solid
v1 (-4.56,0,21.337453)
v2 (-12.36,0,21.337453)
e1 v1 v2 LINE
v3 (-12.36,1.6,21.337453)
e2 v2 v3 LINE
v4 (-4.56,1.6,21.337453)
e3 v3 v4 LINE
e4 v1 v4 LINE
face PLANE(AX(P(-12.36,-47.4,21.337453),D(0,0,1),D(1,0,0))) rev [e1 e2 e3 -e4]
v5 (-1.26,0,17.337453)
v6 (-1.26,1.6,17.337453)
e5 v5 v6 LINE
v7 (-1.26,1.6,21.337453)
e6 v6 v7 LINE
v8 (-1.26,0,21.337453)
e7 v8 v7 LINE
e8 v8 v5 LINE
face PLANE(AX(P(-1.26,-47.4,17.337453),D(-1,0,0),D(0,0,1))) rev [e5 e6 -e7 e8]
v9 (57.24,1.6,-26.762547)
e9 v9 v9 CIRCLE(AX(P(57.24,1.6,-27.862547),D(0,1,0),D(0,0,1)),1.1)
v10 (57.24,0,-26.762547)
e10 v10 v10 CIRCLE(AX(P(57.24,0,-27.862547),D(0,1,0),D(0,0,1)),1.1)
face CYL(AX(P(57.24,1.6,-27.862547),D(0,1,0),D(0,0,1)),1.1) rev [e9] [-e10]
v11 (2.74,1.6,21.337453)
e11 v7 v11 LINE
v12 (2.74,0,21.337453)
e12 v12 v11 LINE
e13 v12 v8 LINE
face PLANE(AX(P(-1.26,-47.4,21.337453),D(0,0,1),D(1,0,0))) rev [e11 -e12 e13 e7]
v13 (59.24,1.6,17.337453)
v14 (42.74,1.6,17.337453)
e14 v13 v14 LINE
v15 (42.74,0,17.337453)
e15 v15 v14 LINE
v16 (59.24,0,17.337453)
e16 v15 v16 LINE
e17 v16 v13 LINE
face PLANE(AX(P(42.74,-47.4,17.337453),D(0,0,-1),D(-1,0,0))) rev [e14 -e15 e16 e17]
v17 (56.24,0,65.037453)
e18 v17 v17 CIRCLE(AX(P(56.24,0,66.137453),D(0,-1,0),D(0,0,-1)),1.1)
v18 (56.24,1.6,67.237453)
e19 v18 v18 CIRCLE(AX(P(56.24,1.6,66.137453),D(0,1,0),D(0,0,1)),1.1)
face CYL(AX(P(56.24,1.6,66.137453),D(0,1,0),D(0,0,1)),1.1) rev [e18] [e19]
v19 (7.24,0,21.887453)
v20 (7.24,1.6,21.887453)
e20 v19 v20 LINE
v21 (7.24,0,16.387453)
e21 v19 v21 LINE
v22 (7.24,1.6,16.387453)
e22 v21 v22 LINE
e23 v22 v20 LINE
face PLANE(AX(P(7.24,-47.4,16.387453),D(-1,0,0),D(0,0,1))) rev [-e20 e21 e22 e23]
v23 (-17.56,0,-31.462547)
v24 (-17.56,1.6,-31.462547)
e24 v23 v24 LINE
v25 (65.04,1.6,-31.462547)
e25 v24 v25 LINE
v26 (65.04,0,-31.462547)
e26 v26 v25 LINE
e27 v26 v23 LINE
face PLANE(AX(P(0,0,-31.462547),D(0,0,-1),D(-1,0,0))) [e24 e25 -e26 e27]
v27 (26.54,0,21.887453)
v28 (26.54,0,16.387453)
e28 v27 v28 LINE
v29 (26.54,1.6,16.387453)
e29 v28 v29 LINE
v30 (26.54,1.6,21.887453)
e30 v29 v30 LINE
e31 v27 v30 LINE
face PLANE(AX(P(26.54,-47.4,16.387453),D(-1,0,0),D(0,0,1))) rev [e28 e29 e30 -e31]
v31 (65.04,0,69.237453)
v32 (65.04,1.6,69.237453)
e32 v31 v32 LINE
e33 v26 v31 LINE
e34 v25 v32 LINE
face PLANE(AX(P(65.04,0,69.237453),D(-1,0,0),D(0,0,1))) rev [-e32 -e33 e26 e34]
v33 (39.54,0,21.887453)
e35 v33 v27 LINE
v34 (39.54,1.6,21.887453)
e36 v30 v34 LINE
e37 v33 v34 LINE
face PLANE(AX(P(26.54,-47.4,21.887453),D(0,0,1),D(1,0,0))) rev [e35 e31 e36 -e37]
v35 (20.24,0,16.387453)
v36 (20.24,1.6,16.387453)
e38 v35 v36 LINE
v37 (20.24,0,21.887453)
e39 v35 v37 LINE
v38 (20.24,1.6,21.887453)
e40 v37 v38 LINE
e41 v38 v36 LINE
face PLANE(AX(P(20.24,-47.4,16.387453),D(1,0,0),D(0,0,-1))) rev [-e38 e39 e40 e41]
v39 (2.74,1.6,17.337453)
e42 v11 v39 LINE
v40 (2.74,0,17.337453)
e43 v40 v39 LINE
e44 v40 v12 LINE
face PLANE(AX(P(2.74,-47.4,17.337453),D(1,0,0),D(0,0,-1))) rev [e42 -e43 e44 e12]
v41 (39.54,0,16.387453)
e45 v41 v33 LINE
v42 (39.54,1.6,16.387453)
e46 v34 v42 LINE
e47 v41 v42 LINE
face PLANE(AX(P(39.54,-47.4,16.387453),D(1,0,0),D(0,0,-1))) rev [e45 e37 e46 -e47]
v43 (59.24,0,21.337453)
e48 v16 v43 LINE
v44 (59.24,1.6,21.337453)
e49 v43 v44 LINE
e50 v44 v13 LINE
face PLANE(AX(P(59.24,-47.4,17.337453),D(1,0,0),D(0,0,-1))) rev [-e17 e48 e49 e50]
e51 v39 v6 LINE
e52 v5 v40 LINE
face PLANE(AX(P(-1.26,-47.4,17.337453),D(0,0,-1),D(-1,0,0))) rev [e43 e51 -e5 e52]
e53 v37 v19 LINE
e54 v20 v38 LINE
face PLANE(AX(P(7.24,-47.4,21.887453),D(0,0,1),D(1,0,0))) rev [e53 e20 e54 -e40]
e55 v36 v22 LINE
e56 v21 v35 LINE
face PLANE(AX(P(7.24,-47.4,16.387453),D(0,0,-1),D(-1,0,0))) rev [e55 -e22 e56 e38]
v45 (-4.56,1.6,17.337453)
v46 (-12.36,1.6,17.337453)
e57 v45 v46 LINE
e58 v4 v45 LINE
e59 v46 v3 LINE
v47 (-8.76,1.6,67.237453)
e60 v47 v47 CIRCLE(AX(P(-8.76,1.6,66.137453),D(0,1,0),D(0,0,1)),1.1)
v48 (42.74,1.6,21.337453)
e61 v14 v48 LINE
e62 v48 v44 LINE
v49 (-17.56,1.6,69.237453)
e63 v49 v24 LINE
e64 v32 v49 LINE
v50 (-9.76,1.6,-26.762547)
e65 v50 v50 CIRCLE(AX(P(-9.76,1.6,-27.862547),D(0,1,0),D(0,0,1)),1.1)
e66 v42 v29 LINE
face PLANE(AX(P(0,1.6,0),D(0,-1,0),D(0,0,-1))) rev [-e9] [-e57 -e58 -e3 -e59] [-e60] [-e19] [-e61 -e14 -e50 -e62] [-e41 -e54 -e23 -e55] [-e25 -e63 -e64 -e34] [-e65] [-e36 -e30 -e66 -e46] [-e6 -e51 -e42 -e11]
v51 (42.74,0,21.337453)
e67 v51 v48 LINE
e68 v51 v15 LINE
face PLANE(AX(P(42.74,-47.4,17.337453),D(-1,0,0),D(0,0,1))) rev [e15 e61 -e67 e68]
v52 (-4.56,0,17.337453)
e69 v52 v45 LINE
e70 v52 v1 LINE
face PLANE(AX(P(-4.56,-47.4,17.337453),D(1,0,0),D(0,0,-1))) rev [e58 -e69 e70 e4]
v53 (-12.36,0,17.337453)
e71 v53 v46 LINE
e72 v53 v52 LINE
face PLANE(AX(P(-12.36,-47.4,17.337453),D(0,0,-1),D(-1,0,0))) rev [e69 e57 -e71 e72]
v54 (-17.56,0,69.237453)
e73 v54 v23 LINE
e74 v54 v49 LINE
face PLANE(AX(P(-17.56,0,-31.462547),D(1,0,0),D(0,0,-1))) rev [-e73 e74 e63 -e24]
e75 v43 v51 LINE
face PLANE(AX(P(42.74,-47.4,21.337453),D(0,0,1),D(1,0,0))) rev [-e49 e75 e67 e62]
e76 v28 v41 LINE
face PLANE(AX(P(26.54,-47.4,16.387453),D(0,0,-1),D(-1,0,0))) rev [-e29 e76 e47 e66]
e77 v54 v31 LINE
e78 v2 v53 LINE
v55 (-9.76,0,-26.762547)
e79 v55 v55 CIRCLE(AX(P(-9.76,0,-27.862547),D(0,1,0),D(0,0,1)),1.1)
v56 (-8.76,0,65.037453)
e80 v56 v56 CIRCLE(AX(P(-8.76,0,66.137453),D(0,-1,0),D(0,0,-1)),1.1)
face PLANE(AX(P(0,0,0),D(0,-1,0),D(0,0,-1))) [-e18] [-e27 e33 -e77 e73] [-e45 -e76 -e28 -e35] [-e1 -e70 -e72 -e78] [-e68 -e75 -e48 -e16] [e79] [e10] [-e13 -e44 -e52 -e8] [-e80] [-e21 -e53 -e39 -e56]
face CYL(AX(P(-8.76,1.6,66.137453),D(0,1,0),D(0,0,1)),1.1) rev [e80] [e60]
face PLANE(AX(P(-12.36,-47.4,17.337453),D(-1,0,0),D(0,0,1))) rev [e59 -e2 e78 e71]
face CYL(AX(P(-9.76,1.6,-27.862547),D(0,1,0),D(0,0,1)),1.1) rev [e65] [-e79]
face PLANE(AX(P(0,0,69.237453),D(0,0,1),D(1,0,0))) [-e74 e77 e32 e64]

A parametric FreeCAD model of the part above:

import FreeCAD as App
import Part
import Sketcher
Q = App.Units.Quantity

doc = App.newDocument("Part")
params = doc.addObject("Spreadsheet::Sheet", "Params")
for row, (alias, value) in enumerate([
    ("sketch1_width", "83 mm"),
    ("sketch1_height", "100 mm"),
    ("pad1_length", "1.6 mm"),
    ("sketch2_width", "13 mm"),
    ("sketch2_width2", "4 mm"),
    ("sketch2_width3", "16.5 mm"),
    ("sketch2_width4", "7.8 mm"),
    ("sketch2_height", "5.5 mm"),
    ("pocket1_length", "49 mm"),
    ("sketch3_diameter", "2.2 mm"),
    ("hole_diameter", "2.2 mm"),
    ("hole_depth", "5 mm"),
    ("sketch4_width", "83 mm"),
    ("sketch4_height", "2.5 mm"),
    ("sketch5_width", "83 mm"),
    ("sketch5_height", "1.6 mm"),
    ("pad2_length", "1.6 mm"),
    ("sketch6_width", "83 mm"),
    ("sketch6_height", "1.6 mm"),
    ("pad3_length", "1.6 mm"),
    ("sketch7_diameter", "2.2 mm"),
    ("hole2_diameter", "2.2 mm"),
    ("hole2_depth", "1.6 mm"),
    ("sketch8_width", "0.2 mm"),
    ("sketch8_height", "100.7 mm"),
], start=1):
    params.set(f"A{row}", alias)
    params.set(f"B{row}", "=" + value)
    params.setAlias(f"B{row}", alias)

body = doc.addObject("PartDesign::Body", "Body")

sketch1 = doc.addObject("Sketcher::SketchObject", "Sketch")
body.addObject(sketch1)
sketch1.AttachmentSupport = (doc.XZ_Plane, [""])
sketch1.MapMode = "FlatFace"
sketch1.addGeometry([
    Part.LineSegment(App.Vector(65.24, 70.137453, 0), App.Vector(65.24, -29.862547, 0)),
    Part.LineSegment(App.Vector(65.24, -29.862547, 0), App.Vector(-17.76, -29.862547, 0)),
    Part.LineSegment(App.Vector(-17.76, -29.862547, 0), App.Vector(-17.76, 70.137453, 0)),
    Part.LineSegment(App.Vector(-17.76, 70.137453, 0), App.Vector(65.24, 70.137453, 0)),
], False)
sketch1.addConstraint([
    Sketcher.Constraint("Coincident", 0, 2, 1, 1),
    Sketcher.Constraint("Coincident", 1, 2, 2, 1),
    Sketcher.Constraint("Coincident", 2, 2, 3, 1),
    Sketcher.Constraint("Coincident", 3, 2, 0, 1),
    Sketcher.Constraint("Vertical", 0),
    Sketcher.Constraint("Horizontal", 1),
    Sketcher.Constraint("Vertical", 2),
    Sketcher.Constraint("Horizontal", 3),
    Sketcher.Constraint("DistanceX", 1, 2, 1, 1, Q("83 mm")),
    Sketcher.Constraint("DistanceY", 0, 2, 0, 1, Q("100 mm")),
    Sketcher.Constraint("DistanceX", -1, 1, 0, 2, Q("65.24 mm")),
    Sketcher.Constraint("DistanceY", 0, 2, -1, 1, Q("29.862547 mm")),
])
sketch1.setExpression("Constraints[8]", "Params.sketch1_width")
sketch1.setExpression("Constraints[9]", "Params.sketch1_height")
pad1 = doc.addObject("PartDesign::Pad", "Pad")
body.addObject(pad1)
pad1.Profile = sketch1
pad1.setExpression("Length", "Params.pad1_length")
pad1.Reversed = True

sketch2 = doc.addObject("Sketcher::SketchObject", "Sketch001")
body.addObject(sketch2)
sketch2.AttachmentSupport = (doc.XZ_Plane, [""])
sketch2.MapMode = "FlatFace"
sketch2.AttachmentOffset = App.Placement(App.Vector(0, 0, -1.6), App.Rotation())
sketch2.addGeometry([
    Part.LineSegment(App.Vector(7.24, 16.387453, 0), App.Vector(7.24, 21.887453, 0)),
    Part.LineSegment(App.Vector(7.24, 21.887453, 0), App.Vector(20.24, 21.887453, 0)),
    Part.LineSegment(App.Vector(20.24, 21.887453, 0), App.Vector(20.24, 16.387453, 0)),
    Part.LineSegment(App.Vector(20.24, 16.387453, 0), App.Vector(7.24, 16.387453, 0)),
    Part.LineSegment(App.Vector(42.74, 17.337453, 0), App.Vector(42.74, 21.337453, 0)),
    Part.LineSegment(App.Vector(42.74, 21.337453, 0), App.Vector(59.24, 21.337453, 0)),
    Part.LineSegment(App.Vector(59.24, 21.337453, 0), App.Vector(59.24, 17.337453, 0)),
    Part.LineSegment(App.Vector(59.24, 17.337453, 0), App.Vector(42.74, 17.337453, 0)),
    Part.LineSegment(App.Vector(-12.36, 17.337453, 0), App.Vector(-12.36, 21.337453, 0)),
    Part.LineSegment(App.Vector(-12.36, 21.337453, 0), App.Vector(-4.56, 21.337453, 0)),
    Part.LineSegment(App.Vector(-4.56, 21.337453, 0), App.Vector(-4.56, 17.337453, 0)),
    Part.LineSegment(App.Vector(-4.56, 17.337453, 0), App.Vector(-12.36, 17.337453, 0)),
    Part.LineSegment(App.Vector(26.54, 16.387453, 0), App.Vector(26.54, 21.887453, 0)),
    Part.LineSegment(App.Vector(26.54, 21.887453, 0), App.Vector(39.54, 21.887453, 0)),
    Part.LineSegment(App.Vector(39.54, 21.887453, 0), App.Vector(39.54, 16.387453, 0)),
    Part.LineSegment(App.Vector(39.54, 16.387453, 0), App.Vector(26.54, 16.387453, 0)),
    Part.LineSegment(App.Vector(-1.26, 17.337453, 0), App.Vector(-1.26, 21.337453, 0)),
    Part.LineSegment(App.Vector(-1.26, 21.337453, 0), App.Vector(2.74, 21.337453, 0)),
    Part.LineSegment(App.Vector(2.74, 21.337453, 0), App.Vector(2.74, 17.337453, 0)),
    Part.LineSegment(App.Vector(2.74, 17.337453, 0), App.Vector(-1.26, 17.337453, 0)),
], False)
sketch2.addConstraint([
    Sketcher.Constraint("Coincident", 0, 2, 1, 1),
    Sketcher.Constraint("Coincident", 1, 2, 2, 1),
    Sketcher.Constraint("Coincident", 2, 2, 3, 1),
    Sketcher.Constraint("Coincident", 3, 2, 0, 1),
    Sketcher.Constraint("Coincident", 4, 2, 5, 1),
    Sketcher.Constraint("Coincident", 5, 2, 6, 1),
    Sketcher.Constraint("Coincident", 6, 2, 7, 1),
    Sketcher.Constraint("Coincident", 7, 2, 4, 1),
    Sketcher.Constraint("Coincident", 8, 2, 9, 1),
    Sketcher.Constraint("Coincident", 9, 2, 10, 1),
    Sketcher.Constraint("Coincident", 10, 2, 11, 1),
    Sketcher.Constraint("Coincident", 11, 2, 8, 1),
    Sketcher.Constraint("Coincident", 12, 2, 13, 1),
    Sketcher.Constraint("Coincident", 13, 2, 14, 1),
    Sketcher.Constraint("Coincident", 14, 2, 15, 1),
    Sketcher.Constraint("Coincident", 15, 2, 12, 1),
    Sketcher.Constraint("Coincident", 16, 2, 17, 1),
    Sketcher.Constraint("Coincident", 17, 2, 18, 1),
    Sketcher.Constraint("Coincident", 18, 2, 19, 1),
    Sketcher.Constraint("Coincident", 19, 2, 16, 1),
    Sketcher.Constraint("Vertical", 0),
    Sketcher.Constraint("Horizontal", 1),
    Sketcher.Constraint("Vertical", 2),
    Sketcher.Constraint("Horizontal", 3),
    Sketcher.Constraint("Vertical", 4),
    Sketcher.Constraint("Horizontal", 5),
    Sketcher.Constraint("Vertical", 6),
    Sketcher.Constraint("Horizontal", 7),
    Sketcher.Constraint("Vertical", 8),
    Sketcher.Constraint("Horizontal", 9),
    Sketcher.Constraint("Vertical", 10),
    Sketcher.Constraint("Horizontal", 11),
    Sketcher.Constraint("Vertical", 12),
    Sketcher.Constraint("Horizontal", 13),
    Sketcher.Constraint("Vertical", 14),
    Sketcher.Constraint("Horizontal", 15),
    Sketcher.Constraint("Vertical", 16),
    Sketcher.Constraint("Horizontal", 17),
    Sketcher.Constraint("Vertical", 18),
    Sketcher.Constraint("Horizontal", 19),
    Sketcher.Constraint("Horizontal", 5, 2, 8, 2),
    Sketcher.Constraint("Horizontal", 7, 2, 10, 2),
    Sketcher.Constraint("Horizontal", 1, 2, 12, 2),
    Sketcher.Constraint("Horizontal", 3, 2, 14, 2),
    Sketcher.Constraint("Horizontal", 9, 2, 16, 2),
    Sketcher.Constraint("Horizontal", 11, 2, 18, 2),
    Sketcher.Constraint("Equal", 3, 13),
    Sketcher.Constraint("Equal", 19, 4),
    Sketcher.Constraint("DistanceX", 1, 1, 1, 2, Q("13 mm")),
    Sketcher.Constraint("DistanceX", 17, 1, 17, 2, Q("4 mm")),
    Sketcher.Constraint("DistanceX", 5, 1, 5, 2, Q("16.5 mm")),
    Sketcher.Constraint("DistanceX", 9, 1, 9, 2, Q("7.8 mm")),
    Sketcher.Constraint("DistanceY", 0, 1, 0, 2, Q("5.5 mm")),
    Sketcher.Constraint("DistanceX", 1, 2, 5, 2, Q("39 mm")),
    Sketcher.Constraint("DistanceX", 8, 2, 0, 2, Q("19.6 mm")),
    Sketcher.Constraint("DistanceX", 1, 2, 12, 2, Q("6.3 mm")),
    Sketcher.Constraint("DistanceX", 9, 2, 16, 2, Q("3.3 mm")),
    Sketcher.Constraint("DistanceX", -1, 1, 0, 2, Q("7.24 mm")),
    Sketcher.Constraint("DistanceY", 4, 2, 1, 2, Q("0.55 mm")),
    Sketcher.Constraint("DistanceY", -1, 1, 0, 2, Q("21.887453 mm")),
])
sketch2.setExpression("Constraints[48]", "Params.sketch2_width")
sketch2.setExpression("Constraints[49]", "Params.sketch2_width2")
sketch2.setExpression("Constraints[50]", "Params.sketch2_width3")
sketch2.setExpression("Constraints[51]", "Params.sketch2_width4")
sketch2.setExpression("Constraints[52]", "Params.sketch2_height")
pocket1 = doc.addObject("PartDesign::Pocket", "Pocket")
body.addObject(pocket1)
pocket1.Profile = sketch2
pocket1.setExpression("Length", "Params.pocket1_length")
pocket1.Reversed = True

sketch3 = doc.addObject("Sketcher::SketchObject", "Sketch002")
body.addObject(sketch3)
sketch3.AttachmentSupport = (doc.XZ_Plane, [""])
sketch3.MapMode = "FlatFace"
sketch3.AttachmentOffset = App.Placement(App.Vector(0, 0, -1.6), App.Rotation())
sketch3.addGeometry([
    Part.Circle(App.Vector(56.24, 66.137453, 0), App.Vector(0, 0, 1), 1.1),
    Part.Circle(App.Vector(-8.76, 66.137453, 0), App.Vector(0, 0, 1), 1.1),
], False)
sketch3.addConstraint([
    Sketcher.Constraint("Equal", 0, 1),
    Sketcher.Constraint("Horizontal", 0, 3, 1, 3),
    Sketcher.Constraint("Diameter", 0, Q("2.2 mm")),
    Sketcher.Constraint("DistanceX", 1, 3, 0, 3, Q("65 mm")),
    Sketcher.Constraint("DistanceX", -1, 1, 0, 3, Q("56.24 mm")),
    Sketcher.Constraint("DistanceY", -1, 1, 0, 3, Q("66.137453 mm")),
])
sketch3.setExpression("Constraints[2]", "Params.sketch3_diameter")
doc.recompute()
hole = doc.addObject("PartDesign::Hole", "Hole")
body.addObject(hole)
hole.Profile = sketch3
hole.ThreadType = "None"
hole.setExpression("Diameter", "Params.hole_diameter")
hole.DepthType = "Dimension"
hole.setExpression("Depth", "Params.hole_depth")
hole.DrillPoint = "Flat"
hole.Reversed = True

sketch4 = doc.addObject("Sketcher::SketchObject", "Sketch003")
body.addObject(sketch4)
sketch4.AttachmentSupport = (doc.XZ_Plane, [""])
sketch4.MapMode = "FlatFace"
sketch4.AttachmentOffset = App.Placement(App.Vector(0, 0, -1.6), App.Rotation())
sketch4.addGeometry([
    Part.LineSegment(App.Vector(-17.76, 67.637453, 0), App.Vector(-17.76, 70.137453, 0)),
    Part.LineSegment(App.Vector(-17.76, 70.137453, 0), App.Vector(65.24, 70.137453, 0)),
    Part.LineSegment(App.Vector(65.24, 70.137453, 0), App.Vector(65.24, 67.637453, 0)),
    Part.LineSegment(App.Vector(65.24, 67.637453, 0), App.Vector(-17.76, 67.637453, 0)),
], False)
sketch4.addConstraint([
    Sketcher.Constraint("Coincident", 0, 2, 1, 1),
    Sketcher.Constraint("Coincident", 1, 2, 2, 1),
    Sketcher.Constraint("Coincident", 2, 2, 3, 1),
    Sketcher.Constraint("Coincident", 3, 2, 0, 1),
    Sketcher.Constraint("Vertical", 0),
    Sketcher.Constraint("Horizontal", 1),
    Sketcher.Constraint("Vertical", 2),
    Sketcher.Constraint("Horizontal", 3),
    Sketcher.Constraint("DistanceX", 1, 1, 1, 2, Q("83 mm")),
    Sketcher.Constraint("DistanceY", 0, 1, 0, 2, Q("2.5 mm")),
    Sketcher.Constraint("DistanceX", 0, 2, -1, 1, Q("17.76 mm")),
    Sketcher.Constraint("DistanceY", -1, 1, 0, 2, Q("70.137453 mm")),
])
sketch4.setExpression("Constraints[8]", "Params.sketch4_width")
sketch4.setExpression("Constraints[9]", "Params.sketch4_height")
pocket2 = doc.addObject("PartDesign::Pocket", "Pocket001")
body.addObject(pocket2)
pocket2.Profile = sketch4
pocket2.Type = "UpToFirst"
pocket2.Reversed = True

sketch5 = doc.addObject("Sketcher::SketchObject", "Sketch004")
body.addObject(sketch5)
sketch5.AttachmentSupport = (doc.XY_Plane, [""])
sketch5.MapMode = "FlatFace"
sketch5.AttachmentOffset = App.Placement(App.Vector(0, 0, -29.862547), App.Rotation())
sketch5.addGeometry([
    Part.LineSegment(App.Vector(65.24, 1.6, 0), App.Vector(65.24, 0, 0)),
    Part.LineSegment(App.Vector(65.24, 0, 0), App.Vector(-17.76, 0, 0)),
    Part.LineSegment(App.Vector(-17.76, 0, 0), App.Vector(-17.76, 1.6, 0)),
    Part.LineSegment(App.Vector(-17.76, 1.6, 0), App.Vector(65.24, 1.6, 0)),
], False)
sketch5.addConstraint([
    Sketcher.Constraint("Coincident", 0, 2, 1, 1),
    Sketcher.Constraint("Coincident", 1, 2, 2, 1),
    Sketcher.Constraint("Coincident", 2, 2, 3, 1),
    Sketcher.Constraint("Coincident", 3, 2, 0, 1),
    Sketcher.Constraint("Vertical", 0),
    Sketcher.Constraint("Horizontal", 1),
    Sketcher.Constraint("Vertical", 2),
    Sketcher.Constraint("Horizontal", 3),
    Sketcher.Constraint("PointOnObject", 0, 2, -1),
    Sketcher.Constraint("DistanceX", 1, 2, 1, 1, Q("83 mm")),
    Sketcher.Constraint("DistanceY", 0, 2, 0, 1, Q("1.6 mm")),
    Sketcher.Constraint("DistanceX", -1, 1, 0, 2, Q("65.24 mm")),
])
sketch5.setExpression("Constraints[9]", "Params.sketch5_width")
sketch5.setExpression("Constraints[10]", "Params.sketch5_height")
pad2 = doc.addObject("PartDesign::Pad", "Pad001")
body.addObject(pad2)
pad2.Profile = sketch5
pad2.setExpression("Length", "Params.pad2_length")
pad2.Reversed = True

sketch6 = doc.addObject("Sketcher::SketchObject", "Sketch005")
body.addObject(sketch6)
sketch6.AttachmentSupport = (doc.XY_Plane, [""])
sketch6.MapMode = "FlatFace"
sketch6.AttachmentOffset = App.Placement(App.Vector(0, 0, 67.637453), App.Rotation())
sketch6.addGeometry([
    Part.LineSegment(App.Vector(-17.76, 1.6, 0), App.Vector(-17.76, 0, 0)),
    Part.LineSegment(App.Vector(-17.76, 0, 0), App.Vector(65.24, 0, 0)),
    Part.LineSegment(App.Vector(65.24, 0, 0), App.Vector(65.24, 1.6, 0)),
    Part.LineSegment(App.Vector(65.24, 1.6, 0), App.Vector(-17.76, 1.6, 0)),
], False)
sketch6.addConstraint([
    Sketcher.Constraint("Coincident", 0, 2, 1, 1),
    Sketcher.Constraint("Coincident", 1, 2, 2, 1),
    Sketcher.Constraint("Coincident", 2, 2, 3, 1),
    Sketcher.Constraint("Coincident", 3, 2, 0, 1),
    Sketcher.Constraint("Vertical", 0),
    Sketcher.Constraint("Horizontal", 1),
    Sketcher.Constraint("Vertical", 2),
    Sketcher.Constraint("Horizontal", 3),
    Sketcher.Constraint("PointOnObject", 0, 2, -1),
    Sketcher.Constraint("DistanceX", 1, 1, 1, 2, Q("83 mm")),
    Sketcher.Constraint("DistanceY", 0, 2, 0, 1, Q("1.6 mm")),
    Sketcher.Constraint("DistanceX", 0, 2, -1, 1, Q("17.76 mm")),
])
sketch6.setExpression("Constraints[9]", "Params.sketch6_width")
sketch6.setExpression("Constraints[10]", "Params.sketch6_height")
pad3 = doc.addObject("PartDesign::Pad", "Pad002")
body.addObject(pad3)
pad3.Profile = sketch6
pad3.setExpression("Length", "Params.pad3_length")

sketch7 = doc.addObject("Sketcher::SketchObject", "Sketch006")
body.addObject(sketch7)
sketch7.AttachmentSupport = (doc.XZ_Plane, [""])
sketch7.MapMode = "FlatFace"
sketch7.AttachmentOffset = App.Placement(App.Vector(0, 0, -1.6), App.Rotation())
sketch7.addGeometry([
    Part.Circle(App.Vector(-9.76, -27.862547, 0), App.Vector(0, 0, 1), 1.1),
    Part.Circle(App.Vector(57.24, -27.862547, 0), App.Vector(0, 0, 1), 1.1),
], False)
sketch7.addConstraint([
    Sketcher.Constraint("Equal", 0, 1),
    Sketcher.Constraint("Horizontal", 0, 3, 1, 3),
    Sketcher.Constraint("Diameter", 0, Q("2.2 mm")),
    Sketcher.Constraint("DistanceX", 0, 3, 1, 3, Q("67 mm")),
    Sketcher.Constraint("DistanceX", 0, 3, -1, 1, Q("9.76 mm")),
    Sketcher.Constraint("DistanceY", 0, 3, -1, 1, Q("27.862547 mm")),
])
sketch7.setExpression("Constraints[2]", "Params.sketch7_diameter")
doc.recompute()
hole2 = doc.addObject("PartDesign::Hole", "Hole001")
body.addObject(hole2)
hole2.Profile = sketch7
hole2.ThreadType = "None"
hole2.setExpression("Diameter", "Params.hole2_diameter")
hole2.DepthType = "Dimension"
hole2.setExpression("Depth", "Params.hole2_depth")
hole2.DrillPoint = "Flat"
hole2.Reversed = True

sketch8 = doc.addObject("Sketcher::SketchObject", "Sketch007")
body.addObject(sketch8)
sketch8.AttachmentSupport = (doc.XZ_Plane, [""])
sketch8.MapMode = "FlatFace"
sketch8.AttachmentOffset = App.Placement(App.Vector(0, 0, -1.6), App.Rotation())
sketch8.addGeometry([
    Part.LineSegment(App.Vector(-17.76, -31.462547, 0), App.Vector(-17.76, 69.237453, 0)),
    Part.LineSegment(App.Vector(-17.76, 69.237453, 0), App.Vector(-17.56, 69.237453, 0)),
    Part.LineSegment(App.Vector(-17.56, 69.237453, 0), App.Vector(-17.56, -31.462547, 0)),
    Part.LineSegment(App.Vector(-17.56, -31.462547, 0), App.Vector(-17.76, -31.462547, 0)),
    Part.LineSegment(App.Vector(65.04, -31.462547, 0), App.Vector(65.04, 69.237453, 0)),
    Part.LineSegment(App.Vector(65.04, 69.237453, 0), App.Vector(65.24, 69.237453, 0)),
    Part.LineSegment(App.Vector(65.24, 69.237453, 0), App.Vector(65.24, -31.462547, 0)),
    Part.LineSegment(App.Vector(65.24, -31.462547, 0), App.Vector(65.04, -31.462547, 0)),
], False)
sketch8.addConstraint([
    Sketcher.Constraint("Coincident", 0, 2, 1, 1),
    Sketcher.Constraint("Coincident", 1, 2, 2, 1),
    Sketcher.Constraint("Coincident", 2, 2, 3, 1),
    Sketcher.Constraint("Coincident", 3, 2, 0, 1),
    Sketcher.Constraint("Coincident", 4, 2, 5, 1),
    Sketcher.Constraint("Coincident", 5, 2, 6, 1),
    Sketcher.Constraint("Coincident", 6, 2, 7, 1),
    Sketcher.Constraint("Coincident", 7, 2, 4, 1),
    Sketcher.Constraint("Vertical", 0),
    Sketcher.Constraint("Horizontal", 1),
    Sketcher.Constraint("Vertical", 2),
    Sketcher.Constraint("Horizontal", 3),
    Sketcher.Constraint("Vertical", 4),
    Sketcher.Constraint("Horizontal", 5),
    Sketcher.Constraint("Vertical", 6),
    Sketcher.Constraint("Horizontal", 7),
    Sketcher.Constraint("Horizontal", 1, 2, 4, 2),
    Sketcher.Constraint("Horizontal", 3, 2, 6, 2),
    Sketcher.Constraint("Equal", 3, 5),
    Sketcher.Constraint("DistanceX", 1, 1, 1, 2, Q("0.2 mm")),
    Sketcher.Constraint("DistanceY", 0, 1, 0, 2, Q("100.7 mm")),
    Sketcher.Constraint("DistanceX", 0, 2, 5, 2, Q("83 mm")),
    Sketcher.Constraint("DistanceX", 0, 2, -1, 1, Q("17.76 mm")),
    Sketcher.Constraint("DistanceY", -1, 1, 0, 2, Q("69.237453 mm")),
])
sketch8.setExpression("Constraints[19]", "Params.sketch8_width")
sketch8.setExpression("Constraints[20]", "Params.sketch8_height")
pocket3 = doc.addObject("PartDesign::Pocket", "Pocket002")
body.addObject(pocket3)
pocket3.Profile = sketch8
pocket3.Type = "ThroughAll"
pocket3.Reversed = True

doc.recompute()
